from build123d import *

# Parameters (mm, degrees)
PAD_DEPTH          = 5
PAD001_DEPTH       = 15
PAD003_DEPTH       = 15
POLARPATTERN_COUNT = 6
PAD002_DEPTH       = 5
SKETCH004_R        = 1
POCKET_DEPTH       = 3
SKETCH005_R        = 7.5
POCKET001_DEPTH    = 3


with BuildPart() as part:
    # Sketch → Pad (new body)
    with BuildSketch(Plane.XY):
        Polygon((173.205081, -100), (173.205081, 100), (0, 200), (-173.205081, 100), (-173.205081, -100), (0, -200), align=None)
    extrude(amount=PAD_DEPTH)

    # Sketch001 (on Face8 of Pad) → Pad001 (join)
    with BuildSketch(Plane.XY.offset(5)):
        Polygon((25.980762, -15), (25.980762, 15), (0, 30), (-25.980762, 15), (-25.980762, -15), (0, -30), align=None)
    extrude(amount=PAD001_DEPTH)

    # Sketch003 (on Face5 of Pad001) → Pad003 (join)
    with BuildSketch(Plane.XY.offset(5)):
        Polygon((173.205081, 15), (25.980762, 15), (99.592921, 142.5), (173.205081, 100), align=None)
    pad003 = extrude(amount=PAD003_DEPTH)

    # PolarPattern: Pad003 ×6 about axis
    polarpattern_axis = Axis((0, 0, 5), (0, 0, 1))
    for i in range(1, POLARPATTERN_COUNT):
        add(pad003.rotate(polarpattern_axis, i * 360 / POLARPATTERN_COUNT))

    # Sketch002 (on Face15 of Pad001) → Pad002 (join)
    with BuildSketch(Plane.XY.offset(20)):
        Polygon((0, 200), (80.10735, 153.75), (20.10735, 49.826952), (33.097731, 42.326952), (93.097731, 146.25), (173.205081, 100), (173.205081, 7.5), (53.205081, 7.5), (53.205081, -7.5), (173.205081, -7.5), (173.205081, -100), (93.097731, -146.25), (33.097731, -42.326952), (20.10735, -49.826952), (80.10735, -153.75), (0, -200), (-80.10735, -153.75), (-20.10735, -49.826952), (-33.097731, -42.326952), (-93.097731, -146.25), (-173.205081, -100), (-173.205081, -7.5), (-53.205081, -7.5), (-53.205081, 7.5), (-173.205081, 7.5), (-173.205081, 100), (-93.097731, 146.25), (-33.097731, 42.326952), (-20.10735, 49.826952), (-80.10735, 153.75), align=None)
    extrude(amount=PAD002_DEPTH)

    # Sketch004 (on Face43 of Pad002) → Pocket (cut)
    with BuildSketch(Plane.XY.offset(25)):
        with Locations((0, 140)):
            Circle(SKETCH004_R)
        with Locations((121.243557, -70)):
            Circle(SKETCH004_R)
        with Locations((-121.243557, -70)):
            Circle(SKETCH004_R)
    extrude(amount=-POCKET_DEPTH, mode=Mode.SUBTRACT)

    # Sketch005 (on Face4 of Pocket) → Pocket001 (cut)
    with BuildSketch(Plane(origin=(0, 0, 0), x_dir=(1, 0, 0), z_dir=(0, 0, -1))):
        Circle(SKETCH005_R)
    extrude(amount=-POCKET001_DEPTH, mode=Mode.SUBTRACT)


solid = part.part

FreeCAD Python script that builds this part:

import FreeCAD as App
import Part
import Sketcher

V = App.Vector
Q = App.Units.Quantity


def add_polygon(sketch, points):
    """Adds a closed chain of lines whose ends are joined by coincident constraints."""
    first, n = sketch.GeometryCount, len(points)
    for a, b in zip(points, points[1:] + points[:1]):
        sketch.addGeometry(Part.LineSegment(App.Vector(*a, 0), App.Vector(*b, 0)), False)
    for i in range(n):
        sketch.addConstraint(Sketcher.Constraint("Coincident", first + i, 2, first + (i + 1) % n, 1))

doc = App.newDocument("Part")
body = doc.addObject("PartDesign::Body", "Body")

# Sketch on XY plane
sketch1 = body.newObject("Sketcher::SketchObject", "Sketch")
sketch1.AttachmentSupport = (doc.getObject("XY_Plane"), [""])
sketch1.MapMode = "FlatFace"
add_polygon(sketch1, [(173, -100), (173, 100), (0, 200), (-173, 100), (-173, -100), (0, -200)])  # lines 0-5
sketch1.addConstraint(Sketcher.Constraint("Vertical", 0))
sketch1.addConstraint(Sketcher.Constraint("Vertical", 3))
sketch1.addConstraint(Sketcher.Constraint("Symmetric", 0, 2, 3, 2, -1, 1))
sketch1.addConstraint(Sketcher.Constraint("Symmetric", 1, 2, 4, 2, -1, 1))
sketch1.addConstraint(Sketcher.Constraint("PointOnObject", 1, 2, -2))
sketch1.addConstraint(Sketcher.Constraint("Parallel", 2, 5))
sketch1.addConstraint(Sketcher.Constraint("Horizontal", 0, 2, 2, 2))
sketch1.addConstraint(Sketcher.Constraint("DistanceY", 0, 1, 0, 2, Q("200 mm")))
sketch1.addConstraint(Sketcher.Constraint("Angle", 1, Q("150 deg")))
sketch1.addConstraint(Sketcher.Constraint("Distance", 1, Q("200 mm")))
pad1 = body.newObject("PartDesign::Pad", "Pad")
pad1.Profile = sketch1
pad1.Length = 5

# Sketch on XY plane
sketch2 = body.newObject("Sketcher::SketchObject", "Sketch001")
sketch2.AttachmentSupport = (doc.getObject("XY_Plane"), [""])
sketch2.MapMode = "FlatFace"
sketch2.AttachmentOffset = App.Placement(V(0, 0, 5), App.Rotation())
add_polygon(sketch2, [(26, -15), (26, 15), (0, 30), (-26, 15), (-26, -15), (0, -30)])  # lines 0-5
sketch2.addConstraint(Sketcher.Constraint("Vertical", 0))
sketch2.addConstraint(Sketcher.Constraint("Vertical", 3))
sketch2.addConstraint(Sketcher.Constraint("Symmetric", 0, 2, 3, 2, -1, 1))
sketch2.addConstraint(Sketcher.Constraint("Symmetric", 1, 2, 4, 2, -1, 1))
sketch2.addConstraint(Sketcher.Constraint("PointOnObject", 1, 2, -2))
sketch2.addConstraint(Sketcher.Constraint("Parallel", 2, 5))
sketch2.addConstraint(Sketcher.Constraint("Horizontal", 0, 2, 2, 2))
sketch2.addConstraint(Sketcher.Constraint("DistanceY", 0, 1, 0, 2, Q("30 mm")))
sketch2.addConstraint(Sketcher.Constraint("Angle", 1, Q("150 deg")))
sketch2.addConstraint(Sketcher.Constraint("Distance", 1, Q("30 mm")))
pad2 = body.newObject("PartDesign::Pad", "Pad001")
pad2.Profile = sketch2
pad2.Length = 15

# Sketch on XY plane
sketch3 = body.newObject("Sketcher::SketchObject", "Sketch002")
sketch3.AttachmentSupport = (doc.getObject("XY_Plane"), [""])
sketch3.MapMode = "FlatFace"
sketch3.AttachmentOffset = App.Placement(V(0, 0, 5), App.Rotation())
add_polygon(sketch3, [(26, 15), (173, 15), (173, 100), (100, 142)])  # lines 0-3
sketch3.addConstraint(Sketcher.Constraint("Horizontal", 0))
sketch3.addConstraint(Sketcher.Constraint("Vertical", 1))
sketch3.addConstraint(Sketcher.Constraint("Perpendicular", 2, 3))
sketch3.addConstraint(Sketcher.Constraint("DistanceY", 1, 1, 1, 2, Q("85 mm")))
sketch3.addConstraint(Sketcher.Constraint("Angle", 2, Q("150 deg")))
sketch3.addConstraint(Sketcher.Constraint("Distance", 2, Q("85.000001 mm")))
sketch3.addConstraint(Sketcher.Constraint("DistanceY", -1, 1, 0, 2, Q("15 mm")))
sketch3.addConstraint(Sketcher.Constraint("DistanceX", -1, 1, 0, 2, Q("173.205081 mm")))
pad3 = body.newObject("PartDesign::Pad", "Pad002")
pad3.Profile = sketch3
pad3.Length = 15
doc.recompute()

polarpattern = body.newObject("PartDesign::PolarPattern", "PolarPattern")
polarpattern.Originals = [pad3]
polarpattern.Axis = (doc.getObject("Z_Axis"), [""])
polarpattern.Angle = 360
polarpattern.Occurrences = 6
body.Tip = polarpattern

# Sketch on XY plane
sketch4 = body.newObject("Sketcher::SketchObject", "Sketch003")
sketch4.AttachmentSupport = (doc.getObject("XY_Plane"), [""])
sketch4.MapMode = "FlatFace"
sketch4.AttachmentOffset = App.Placement(V(0, 0, 20), App.Rotation())
add_polygon(sketch4, [(80, 154), (0, 200), (-80, 154), (-20, 50), (-33, 42), (-93, 146), (-173, 100), (-173, 8), (-53, 8), (-53, -8), (-173, -8), (-173, -100), (-93, -146), (-33, -42), (-20, -50), (-80, -154), (0, -200), (80, -154), (20, -50), (33, -42), (93, -146), (173, -100), (173, -8), (53, -8), (53, 8), (173, 8), (173, 100), (93, 146), (33, 42), (20, 50)])  # lines 0-29
sketch4.addConstraint(Sketcher.Constraint("Vertical", 6))
sketch4.addConstraint(Sketcher.Constraint("Horizontal", 7))
sketch4.addConstraint(Sketcher.Constraint("Vertical", 8))
sketch4.addConstraint(Sketcher.Constraint("Horizontal", 9))
sketch4.addConstraint(Sketcher.Constraint("Vertical", 10))
sketch4.addConstraint(Sketcher.Constraint("Vertical", 21))
sketch4.addConstraint(Sketcher.Constraint("Horizontal", 22))
sketch4.addConstraint(Sketcher.Constraint("Vertical", 23))
sketch4.addConstraint(Sketcher.Constraint("Horizontal", 24))
sketch4.addConstraint(Sketcher.Constraint("Vertical", 25))
sketch4.addConstraint(Sketcher.Constraint("Symmetric", 0, 2, 15, 2, -1, 1))
sketch4.addConstraint(Sketcher.Constraint("Symmetric", 1, 2, 16, 2, -1, 1))
sketch4.addConstraint(Sketcher.Constraint("Symmetric", 2, 2, 17, 2, -1, 1))
sketch4.addConstraint(Sketcher.Constraint("Symmetric", 3, 2, 18, 2, -1, 1))
sketch4.addConstraint(Sketcher.Constraint("Symmetric", 4, 2, 19, 2, -1, 1))
sketch4.addConstraint(Sketcher.Constraint("Symmetric", 5, 2, 20, 2, -1, 1))
sketch4.addConstraint(Sketcher.Constraint("Symmetric", 7, 2, 22, 2, -1, 1))
sketch4.addConstraint(Sketcher.Constraint("Symmetric", 9, 2, 24, 2, -1, 1))
sketch4.addConstraint(Sketcher.Constraint("Symmetric", 11, 2, 26, 2, -1, 1))
sketch4.addConstraint(Sketcher.Constraint("Symmetric", 12, 2, 27, 2, -1, 1))
sketch4.addConstraint(Sketcher.Constraint("Symmetric", 13, 2, 28, 2, -1, 1))
sketch4.addConstraint(Sketcher.Constraint("Symmetric", 14, 2, 29, 2, -1, 1))
sketch4.addConstraint(Sketcher.Constraint("Symmetric", 14, 2, 16, 2, -2))
sketch4.addConstraint(Sketcher.Constraint("Symmetric", 13, 2, 17, 2, -2))
sketch4.addConstraint(Sketcher.Constraint("Symmetric", 12, 2, 18, 2, -2))
sketch4.addConstraint(Sketcher.Constraint("Symmetric", 11, 2, 19, 2, -2))
sketch4.addConstraint(Sketcher.Constraint("Symmetric", 10, 2, 20, 2, -2))
sketch4.addConstraint(Sketcher.Constraint("PointOnObject", 0, 2, -2))
sketch4.addConstraint(Sketcher.Constraint("Perpendicular", 1, 2))
sketch4.addConstraint(Sketcher.Constraint("Perpendicular", 2, 3))
sketch4.addConstraint(Sketcher.Constraint("Perpendicular", 3, 4))
sketch4.addConstraint(Sketcher.Constraint("Perpendicular", 4, 5))
sketch4.addConstraint(Sketcher.Constraint("Parallel", 15, 26))
sketch4.addConstraint(Sketcher.Constraint("Horizontal", 9, 2, 21, 2))
sketch4.addConstraint(Sketcher.Constraint("Equal", 2, 4))
sketch4.addConstraint(Sketcher.Constraint("Equal", 1, 5))
sketch4.addConstraint(Sketcher.Constraint("DistanceX", 7, 1, 7, 2, Q("120 mm")))
sketch4.addConstraint(Sketcher.Constraint("DistanceY", 8, 2, 8, 1, Q("15 mm")))
sketch4.addConstraint(Sketcher.Constraint("Angle", 0, Q("150 deg")))
sketch4.addConstraint(Sketcher.Constraint("Distance", 2, Q("120 mm")))
sketch4.addConstraint(Sketcher.Constraint("Distance", 3, Q("15 mm")))
sketch4.addConstraint(Sketcher.Constraint("DistanceY", 6, 2, 6, 1, Q("92.5 mm")))
sketch4.addConstraint(Sketcher.Constraint("DistanceY", -1, 1, 0, 2, Q("200 mm")))
pad4 = body.newObject("PartDesign::Pad", "Pad003")
pad4.Profile = sketch4
pad4.Length = 5

# Sketch on XY plane
sketch5 = body.newObject("Sketcher::SketchObject", "Sketch004")
sketch5.AttachmentSupport = (doc.getObject("XY_Plane"), [""])
sketch5.MapMode = "FlatFace"
sketch5.AttachmentOffset = App.Placement(V(0, 0, 25), App.Rotation())
sketch5.addGeometry(Part.Circle(V(0, 140, 0), V(0, 0, 1), 1), False)
sketch5.addGeometry(Part.Circle(V(121.2, -70, 0), V(0, 0, 1), 1), False)
sketch5.addGeometry(Part.Circle(V(-121.2, -70, 0), V(0, 0, 1), 1), False)
sketch5.addConstraint(Sketcher.Constraint("Equal", 0, 1))
sketch5.addConstraint(Sketcher.Constraint("Equal", 1, 2))
sketch5.addConstraint(Sketcher.Constraint("Symmetric", 1, 3, 2, 3, -2))
sketch5.addConstraint(Sketcher.Constraint("PointOnObject", 0, 3, -2))
sketch5.addConstraint(Sketcher.Constraint("Diameter", 0, Q("2 mm")))
sketch5.addConstraint(Sketcher.Constraint("DistanceY", -1, 1, 0, 3, Q("140 mm")))
sketch5.addConstraint(Sketcher.Constraint("DistanceY", 1, 3, -1, 1, Q("70 mm")))
sketch5.addConstraint(Sketcher.Constraint("DistanceX", -1, 1, 1, 3, Q("121.243557 mm")))
pocket1 = body.newObject("PartDesign::Pocket", "Pocket")
pocket1.Profile = sketch5
pocket1.Length = 3

# Sketch on XY plane
sketch6 = body.newObject("Sketcher::SketchObject", "Sketch005")
sketch6.AttachmentSupport = (doc.getObject("XY_Plane"), [""])
sketch6.MapMode = "FlatFace"
sketch6.addGeometry(Part.Circle(V(0, 0, 0), V(0, 0, 1), 8), False)
sketch6.addConstraint(Sketcher.Constraint("Coincident", 0, 3, -1, 1))
sketch6.addConstraint(Sketcher.Constraint("Diameter", 0, Q("15 mm")))
pocket2 = body.newObject("PartDesign::Pocket", "Pocket001")
pocket2.Profile = sketch6
pocket2.Length = 3
pocket2.Reversed = True

doc.recompute()
